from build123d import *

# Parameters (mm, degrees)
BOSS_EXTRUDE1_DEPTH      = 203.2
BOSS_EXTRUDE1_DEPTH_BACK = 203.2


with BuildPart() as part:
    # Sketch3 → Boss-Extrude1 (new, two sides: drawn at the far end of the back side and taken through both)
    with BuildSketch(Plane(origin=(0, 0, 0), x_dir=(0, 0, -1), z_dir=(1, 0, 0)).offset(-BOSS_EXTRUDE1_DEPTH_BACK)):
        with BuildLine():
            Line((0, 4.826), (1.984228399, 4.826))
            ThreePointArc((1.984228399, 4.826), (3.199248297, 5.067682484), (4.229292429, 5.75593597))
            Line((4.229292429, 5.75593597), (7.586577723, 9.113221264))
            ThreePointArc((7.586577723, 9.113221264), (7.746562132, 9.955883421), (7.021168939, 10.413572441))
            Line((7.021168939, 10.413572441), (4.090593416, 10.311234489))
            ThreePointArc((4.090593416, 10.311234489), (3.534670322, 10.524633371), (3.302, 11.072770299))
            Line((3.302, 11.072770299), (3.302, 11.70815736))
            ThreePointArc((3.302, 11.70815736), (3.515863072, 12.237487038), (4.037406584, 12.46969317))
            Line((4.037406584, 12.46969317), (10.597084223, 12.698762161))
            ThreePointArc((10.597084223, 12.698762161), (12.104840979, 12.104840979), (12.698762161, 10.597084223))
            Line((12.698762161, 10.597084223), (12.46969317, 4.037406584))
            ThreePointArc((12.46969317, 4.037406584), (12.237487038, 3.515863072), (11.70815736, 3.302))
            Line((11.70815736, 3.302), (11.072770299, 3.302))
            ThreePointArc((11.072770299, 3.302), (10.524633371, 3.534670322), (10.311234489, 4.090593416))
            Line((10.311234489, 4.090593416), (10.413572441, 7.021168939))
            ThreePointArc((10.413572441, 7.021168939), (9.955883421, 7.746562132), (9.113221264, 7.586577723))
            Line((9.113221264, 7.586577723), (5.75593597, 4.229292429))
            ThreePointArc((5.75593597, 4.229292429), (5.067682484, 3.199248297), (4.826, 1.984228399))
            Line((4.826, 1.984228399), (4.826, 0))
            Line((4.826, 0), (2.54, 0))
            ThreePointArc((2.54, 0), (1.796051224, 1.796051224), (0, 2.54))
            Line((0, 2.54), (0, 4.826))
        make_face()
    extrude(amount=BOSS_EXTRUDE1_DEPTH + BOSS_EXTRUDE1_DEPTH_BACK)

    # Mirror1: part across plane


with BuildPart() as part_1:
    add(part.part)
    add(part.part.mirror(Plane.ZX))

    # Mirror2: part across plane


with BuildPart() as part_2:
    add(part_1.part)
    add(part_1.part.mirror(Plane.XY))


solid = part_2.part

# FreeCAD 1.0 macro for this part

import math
import FreeCAD as App
import Part
import Sketcher

V = App.Vector
Q = App.Units.Quantity

doc = App.newDocument("Part")
params = doc.addObject("Spreadsheet::Sheet", "Params")
for row, (alias, value) in enumerate([
    ("sketch1_radius", "0.1 in"),
    ("sketch1_radius2", "0.03 in"),
    ("sketch1_radius3", "0.08 in"),
    ("sketch1_radius4", "0.125 in"),
    ("sketch1_width", "0.09 in"),
    ("pad1_length", "8 in"),
    ("pad1_length2", "8 in"),
], start=1):
    params.set(f"A{row}", alias)
    params.set(f"B{row}", "=" + value)
    params.setAlias(f"B{row}", alias)

body = doc.addObject("PartDesign::Body", "Body")

# Sketch on YZ plane
sketch1 = body.newObject("Sketcher::SketchObject", "Sketch")
sketch1.AttachmentSupport = (doc.getObject("YZ_Plane"), [""])
sketch1.MapMode = "FlatFace"
sketch1.addGeometry([
    Part.LineSegment(V(4.826, -1.984228, 0), V(4.826, 0, 0)),  # 0
    Part.LineSegment(V(4.826, 0, 0), V(2.54, 0, 0)),  # 1
    Part.ArcOfCircle(Part.Circle(V(0, 0, 0), V(0, 0, 1), 2.54), math.radians(-90), math.radians(0)),  # 2
    Part.LineSegment(V(0, -2.54, 0), V(0, -4.826, 0)),  # 3
    Part.LineSegment(V(0, -4.826, 0), V(1.984228, -4.826, 0)),  # 4
    Part.ArcOfCircle(Part.Circle(V(1.984228, -8.001, 0), V(0, 0, 1), 3.175), math.radians(45), math.radians(90)),  # 5
    Part.LineSegment(V(4.229292, -5.755936, 0), V(7.586578, -9.113221, 0)),  # 6
    Part.ArcOfCircle(Part.Circle(V(7.047762, -9.652037, 0), V(0, 0, 1), 0.762), math.radians(-92), math.radians(45)),  # 7
    Part.LineSegment(V(7.021169, -10.413572, 0), V(4.090593, -10.311234, 0)),  # 8
    Part.ArcOfCircle(Part.Circle(V(4.064, -11.07277, 0), V(0, 0, 1), 0.762), math.radians(88), math.radians(180)),  # 9
    Part.LineSegment(V(3.302, -11.07277, 0), V(3.302, -11.708157, 0)),  # 10
    Part.ArcOfCircle(Part.Circle(V(4.064, -11.708157, 0), V(0, 0, 1), 0.762), math.radians(180), math.radians(268)),  # 11
    Part.LineSegment(V(4.037407, -12.469693, 0), V(10.597084, -12.698762, 0)),  # 12
    Part.ArcOfCircle(Part.Circle(V(10.668, -10.668, 0), V(0, 0, 1), 2.032), math.radians(-92), math.radians(2)),  # 13
    Part.LineSegment(V(12.698762, -10.597084, 0), V(12.469693, -4.037407, 0)),  # 14
    Part.ArcOfCircle(Part.Circle(V(11.708157, -4.064, 0), V(0, 0, 1), 0.762), math.radians(2), math.radians(90)),  # 15
    Part.LineSegment(V(11.708157, -3.302, 0), V(11.07277, -3.302, 0)),  # 16
    Part.ArcOfCircle(Part.Circle(V(11.07277, -4.064, 0), V(0, 0, 1), 0.762), math.radians(90), math.radians(182)),  # 17
    Part.LineSegment(V(10.311234, -4.090593, 0), V(10.413572, -7.021169, 0)),  # 18
    Part.ArcOfCircle(Part.Circle(V(9.652037, -7.047762, 0), V(0, 0, 1), 0.762), math.radians(-135), math.radians(2)),  # 19
    Part.LineSegment(V(9.113221, -7.586578, 0), V(5.755936, -4.229292, 0)),  # 20
    Part.ArcOfCircle(Part.Circle(V(8.001, -1.984228, 0), V(0, 0, 1), 3.175), math.radians(180), math.radians(225)),  # 21
], False)
sketch1.addConstraint([
    Sketcher.Constraint("Coincident", 0, 2, 1, 1),
    Sketcher.Constraint("Coincident", 1, 2, 2, 2),
    Sketcher.Constraint("Coincident", 2, 1, 3, 1),
    Sketcher.Constraint("Coincident", 3, 2, 4, 1),
    Sketcher.Constraint("Tangent", 4, 2, 5, 2),
    Sketcher.Constraint("Tangent", 5, 1, 6, 1),
    Sketcher.Constraint("Tangent", 6, 2, 7, 2),
    Sketcher.Constraint("Tangent", 7, 1, 8, 1),
    Sketcher.Constraint("Tangent", 8, 2, 9, 1),
    Sketcher.Constraint("Tangent", 9, 2, 10, 1),
    Sketcher.Constraint("Tangent", 10, 2, 11, 1),
    Sketcher.Constraint("Tangent", 11, 2, 12, 1),
    Sketcher.Constraint("Tangent", 12, 2, 13, 1),
    Sketcher.Constraint("Tangent", 13, 2, 14, 1),
    Sketcher.Constraint("Tangent", 14, 2, 15, 1),
    Sketcher.Constraint("Tangent", 15, 2, 16, 1),
    Sketcher.Constraint("Tangent", 16, 2, 17, 1),
    Sketcher.Constraint("Tangent", 17, 2, 18, 1),
    Sketcher.Constraint("Tangent", 18, 2, 19, 2),
    Sketcher.Constraint("Tangent", 19, 1, 20, 1),
    Sketcher.Constraint("Tangent", 20, 2, 21, 2),
    Sketcher.Constraint("Tangent", 21, 1, 0, 1),
    Sketcher.Constraint("Vertical", 0),
    Sketcher.Constraint("Horizontal", 1),
    Sketcher.Constraint("Vertical", 3),
    Sketcher.Constraint("Horizontal", 4),
    Sketcher.Constraint("Vertical", 10),
    Sketcher.Constraint("Horizontal", 16),
    Sketcher.Constraint("Coincident", 2, 3, -1, 1),
    Sketcher.Constraint("Equal", 7, 9),
    Sketcher.Constraint("Equal", 9, 11),
    Sketcher.Constraint("Equal", 11, 15),
    Sketcher.Constraint("Equal", 15, 17),
    Sketcher.Constraint("Equal", 17, 19),
    Sketcher.Constraint("Equal", 5, 21),
    Sketcher.Constraint("PointOnObject", 0, 2, -1),
    Sketcher.Constraint("PointOnObject", 2, 1, -2),
    Sketcher.Constraint("Parallel", 8, 12),
    Sketcher.Constraint("Parallel", 14, 18),
    Sketcher.Constraint("Parallel", 6, 20),
    Sketcher.Constraint("Equal", 4, 0),
    Sketcher.Constraint("Equal", 1, 3),
    Sketcher.Constraint("Equal", 16, 10),
    Sketcher.Constraint("Equal", 12, 14),
    Sketcher.Constraint("Equal", 8, 18),
    Sketcher.Constraint("Equal", 6, 20),
    Sketcher.Constraint("Radius", 2, Q("0.1 in")),
    Sketcher.Constraint("Radius", 7, Q("0.03 in")),
    Sketcher.Constraint("Radius", 13, Q("0.08 in")),
    Sketcher.Constraint("Angle", 6, Q("-45 deg")),
    Sketcher.Constraint("Angle", 8, Q("178 deg")),
    Sketcher.Constraint("Radius", 5, Q("0.125 in")),
    Sketcher.Constraint("DistanceX", 1, 2, 1, 1, Q("0.09 in")),
    Sketcher.Constraint("DistanceX", -1, 1, 9, 3, Q("0.16 in")),
    Sketcher.Constraint("DistanceX", -1, 1, 13, 3, Q("0.42 in")),
    Sketcher.Constraint("DistanceX", 4, 1, 4, 2, Q("1.984228 mm")),
    Sketcher.Constraint("DistanceY", 7, 3, 5, 1, Q("3.896101 mm")),
])
sketch1.setExpression("Constraints[46]", "Params.sketch1_radius")
sketch1.setExpression("Constraints[47]", "Params.sketch1_radius2")
sketch1.setExpression("Constraints[48]", "Params.sketch1_radius3")
sketch1.setExpression("Constraints[51]", "Params.sketch1_radius4")
sketch1.setExpression("Constraints[52]", "Params.sketch1_width")
pad1 = body.newObject("PartDesign::Pad", "Pad")
pad1.Profile = sketch1
pad1.Type = "TwoLengths"
pad1.setExpression("Length", "Params.pad1_length")
pad1.setExpression("Length2", "Params.pad1_length2")
body2 = doc.addObject("PartDesign::Body", "Body001")
doc.recompute()

body2.BaseFeature = body
doc.recompute()

mirroring = doc.addObject("Part::Mirroring", "Mirroring")
mirroring.Source = body
mirroring.Base = V(0, 0, 0)
mirroring.Normal = V(0, 1, 0)
body3 = doc.addObject("PartDesign::Body", "Body002")
body3.BaseFeature = mirroring
boolean = body2.newObject("PartDesign::Boolean", "Boolean")
boolean.Type = "Fuse"
boolean.addObjects([body3])
doc.recompute()
body4 = doc.addObject("PartDesign::Body", "Body003")
doc.recompute()

body4.BaseFeature = body2
doc.recompute()

mirroring2 = doc.addObject("Part::Mirroring", "Mirroring001")
mirroring2.Source = body2
mirroring2.Base = V(0, 0, 0)
mirroring2.Normal = V(0, 0, 1)
body5 = doc.addObject("PartDesign::Body", "Body004")
body5.BaseFeature = mirroring2
boolean2 = body4.newObject("PartDesign::Boolean", "Boolean001")
boolean2.Type = "Fuse"
boolean2.addObjects([body5])
doc.recompute()
mirroring.Visibility = False
mirroring2.Visibility = False

doc.recompute()
